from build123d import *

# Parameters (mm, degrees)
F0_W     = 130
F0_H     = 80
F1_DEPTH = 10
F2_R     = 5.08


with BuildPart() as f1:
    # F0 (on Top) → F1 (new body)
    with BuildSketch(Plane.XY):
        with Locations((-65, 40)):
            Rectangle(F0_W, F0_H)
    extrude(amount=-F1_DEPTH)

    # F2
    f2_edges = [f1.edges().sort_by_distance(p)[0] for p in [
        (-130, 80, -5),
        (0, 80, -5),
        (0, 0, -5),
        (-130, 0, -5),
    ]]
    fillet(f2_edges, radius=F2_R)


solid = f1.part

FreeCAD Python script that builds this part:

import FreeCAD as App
import Part
import Sketcher

V = App.Vector
Q = App.Units.Quantity


def edges_at(feature, points):
    """Names of the edges that pass closest to the given points."""
    edges = feature.Shape.Edges
    near = lambda p: min(range(len(edges)), key=lambda i: edges[i].distToShape(Part.Vertex(*p))[0])
    return sorted({f"Edge{near(p) + 1}" for p in points})


def add_polygon(sketch, points):
    """Adds a closed chain of lines whose ends are joined by coincident constraints."""
    first, n = sketch.GeometryCount, len(points)
    for a, b in zip(points, points[1:] + points[:1]):
        sketch.addGeometry(Part.LineSegment(App.Vector(*a, 0), App.Vector(*b, 0)), False)
    for i in range(n):
        sketch.addConstraint(Sketcher.Constraint("Coincident", first + i, 2, first + (i + 1) % n, 1))

doc = App.newDocument("Part")
params = doc.addObject("Spreadsheet::Sheet", "Params")
for row, (alias, value) in enumerate([
    ("sketch1_width", "130 mm"),
    ("sketch1_height", "80 mm"),
    ("pad1_length", "10 mm"),
    ("fillet_radius", "5.08 mm"),
], start=1):
    params.set(f"A{row}", alias)
    params.set(f"B{row}", "=" + value)
    params.setAlias(f"B{row}", alias)

body = doc.addObject("PartDesign::Body", "Body")

sketch1 = body.newObject("Sketcher::SketchObject", "Sketch")
sketch1.AttachmentSupport = (doc.getObject("XY_Plane"), [""])
sketch1.MapMode = "FlatFace"
add_polygon(sketch1, [(-130, 80), (-130, 0), (0, 0), (0, 80)])
sketch1.addConstraint([
    Sketcher.Constraint("Vertical", 0),
    Sketcher.Constraint("Horizontal", 1),
    Sketcher.Constraint("Vertical", 2),
    Sketcher.Constraint("Horizontal", 3),
    Sketcher.Constraint("Coincident", 1, 2, -1, 1),
    Sketcher.Constraint("DistanceX", 1, 1, 1, 2, Q("130 mm")),
    Sketcher.Constraint("DistanceY", 0, 2, 0, 1, Q("80 mm")),
])
sketch1.setExpression("Constraints[9]", "Params.sketch1_width")
sketch1.setExpression("Constraints[10]", "Params.sketch1_height")
pad1 = body.newObject("PartDesign::Pad", "Pad")
pad1.Profile = sketch1
pad1.setExpression("Length", "Params.pad1_length")
pad1.Reversed = True
doc.recompute()

fillet = body.newObject("PartDesign::Fillet", "Fillet")
fillet.Base = (pad1, edges_at(pad1, [
    (-130, 80, -5),
    (0, 80, -5),
    (0, 0, -5),
    (-130, 0, -5),
]))
fillet.setExpression("Radius", "Params.fillet_radius")

doc.recompute()
